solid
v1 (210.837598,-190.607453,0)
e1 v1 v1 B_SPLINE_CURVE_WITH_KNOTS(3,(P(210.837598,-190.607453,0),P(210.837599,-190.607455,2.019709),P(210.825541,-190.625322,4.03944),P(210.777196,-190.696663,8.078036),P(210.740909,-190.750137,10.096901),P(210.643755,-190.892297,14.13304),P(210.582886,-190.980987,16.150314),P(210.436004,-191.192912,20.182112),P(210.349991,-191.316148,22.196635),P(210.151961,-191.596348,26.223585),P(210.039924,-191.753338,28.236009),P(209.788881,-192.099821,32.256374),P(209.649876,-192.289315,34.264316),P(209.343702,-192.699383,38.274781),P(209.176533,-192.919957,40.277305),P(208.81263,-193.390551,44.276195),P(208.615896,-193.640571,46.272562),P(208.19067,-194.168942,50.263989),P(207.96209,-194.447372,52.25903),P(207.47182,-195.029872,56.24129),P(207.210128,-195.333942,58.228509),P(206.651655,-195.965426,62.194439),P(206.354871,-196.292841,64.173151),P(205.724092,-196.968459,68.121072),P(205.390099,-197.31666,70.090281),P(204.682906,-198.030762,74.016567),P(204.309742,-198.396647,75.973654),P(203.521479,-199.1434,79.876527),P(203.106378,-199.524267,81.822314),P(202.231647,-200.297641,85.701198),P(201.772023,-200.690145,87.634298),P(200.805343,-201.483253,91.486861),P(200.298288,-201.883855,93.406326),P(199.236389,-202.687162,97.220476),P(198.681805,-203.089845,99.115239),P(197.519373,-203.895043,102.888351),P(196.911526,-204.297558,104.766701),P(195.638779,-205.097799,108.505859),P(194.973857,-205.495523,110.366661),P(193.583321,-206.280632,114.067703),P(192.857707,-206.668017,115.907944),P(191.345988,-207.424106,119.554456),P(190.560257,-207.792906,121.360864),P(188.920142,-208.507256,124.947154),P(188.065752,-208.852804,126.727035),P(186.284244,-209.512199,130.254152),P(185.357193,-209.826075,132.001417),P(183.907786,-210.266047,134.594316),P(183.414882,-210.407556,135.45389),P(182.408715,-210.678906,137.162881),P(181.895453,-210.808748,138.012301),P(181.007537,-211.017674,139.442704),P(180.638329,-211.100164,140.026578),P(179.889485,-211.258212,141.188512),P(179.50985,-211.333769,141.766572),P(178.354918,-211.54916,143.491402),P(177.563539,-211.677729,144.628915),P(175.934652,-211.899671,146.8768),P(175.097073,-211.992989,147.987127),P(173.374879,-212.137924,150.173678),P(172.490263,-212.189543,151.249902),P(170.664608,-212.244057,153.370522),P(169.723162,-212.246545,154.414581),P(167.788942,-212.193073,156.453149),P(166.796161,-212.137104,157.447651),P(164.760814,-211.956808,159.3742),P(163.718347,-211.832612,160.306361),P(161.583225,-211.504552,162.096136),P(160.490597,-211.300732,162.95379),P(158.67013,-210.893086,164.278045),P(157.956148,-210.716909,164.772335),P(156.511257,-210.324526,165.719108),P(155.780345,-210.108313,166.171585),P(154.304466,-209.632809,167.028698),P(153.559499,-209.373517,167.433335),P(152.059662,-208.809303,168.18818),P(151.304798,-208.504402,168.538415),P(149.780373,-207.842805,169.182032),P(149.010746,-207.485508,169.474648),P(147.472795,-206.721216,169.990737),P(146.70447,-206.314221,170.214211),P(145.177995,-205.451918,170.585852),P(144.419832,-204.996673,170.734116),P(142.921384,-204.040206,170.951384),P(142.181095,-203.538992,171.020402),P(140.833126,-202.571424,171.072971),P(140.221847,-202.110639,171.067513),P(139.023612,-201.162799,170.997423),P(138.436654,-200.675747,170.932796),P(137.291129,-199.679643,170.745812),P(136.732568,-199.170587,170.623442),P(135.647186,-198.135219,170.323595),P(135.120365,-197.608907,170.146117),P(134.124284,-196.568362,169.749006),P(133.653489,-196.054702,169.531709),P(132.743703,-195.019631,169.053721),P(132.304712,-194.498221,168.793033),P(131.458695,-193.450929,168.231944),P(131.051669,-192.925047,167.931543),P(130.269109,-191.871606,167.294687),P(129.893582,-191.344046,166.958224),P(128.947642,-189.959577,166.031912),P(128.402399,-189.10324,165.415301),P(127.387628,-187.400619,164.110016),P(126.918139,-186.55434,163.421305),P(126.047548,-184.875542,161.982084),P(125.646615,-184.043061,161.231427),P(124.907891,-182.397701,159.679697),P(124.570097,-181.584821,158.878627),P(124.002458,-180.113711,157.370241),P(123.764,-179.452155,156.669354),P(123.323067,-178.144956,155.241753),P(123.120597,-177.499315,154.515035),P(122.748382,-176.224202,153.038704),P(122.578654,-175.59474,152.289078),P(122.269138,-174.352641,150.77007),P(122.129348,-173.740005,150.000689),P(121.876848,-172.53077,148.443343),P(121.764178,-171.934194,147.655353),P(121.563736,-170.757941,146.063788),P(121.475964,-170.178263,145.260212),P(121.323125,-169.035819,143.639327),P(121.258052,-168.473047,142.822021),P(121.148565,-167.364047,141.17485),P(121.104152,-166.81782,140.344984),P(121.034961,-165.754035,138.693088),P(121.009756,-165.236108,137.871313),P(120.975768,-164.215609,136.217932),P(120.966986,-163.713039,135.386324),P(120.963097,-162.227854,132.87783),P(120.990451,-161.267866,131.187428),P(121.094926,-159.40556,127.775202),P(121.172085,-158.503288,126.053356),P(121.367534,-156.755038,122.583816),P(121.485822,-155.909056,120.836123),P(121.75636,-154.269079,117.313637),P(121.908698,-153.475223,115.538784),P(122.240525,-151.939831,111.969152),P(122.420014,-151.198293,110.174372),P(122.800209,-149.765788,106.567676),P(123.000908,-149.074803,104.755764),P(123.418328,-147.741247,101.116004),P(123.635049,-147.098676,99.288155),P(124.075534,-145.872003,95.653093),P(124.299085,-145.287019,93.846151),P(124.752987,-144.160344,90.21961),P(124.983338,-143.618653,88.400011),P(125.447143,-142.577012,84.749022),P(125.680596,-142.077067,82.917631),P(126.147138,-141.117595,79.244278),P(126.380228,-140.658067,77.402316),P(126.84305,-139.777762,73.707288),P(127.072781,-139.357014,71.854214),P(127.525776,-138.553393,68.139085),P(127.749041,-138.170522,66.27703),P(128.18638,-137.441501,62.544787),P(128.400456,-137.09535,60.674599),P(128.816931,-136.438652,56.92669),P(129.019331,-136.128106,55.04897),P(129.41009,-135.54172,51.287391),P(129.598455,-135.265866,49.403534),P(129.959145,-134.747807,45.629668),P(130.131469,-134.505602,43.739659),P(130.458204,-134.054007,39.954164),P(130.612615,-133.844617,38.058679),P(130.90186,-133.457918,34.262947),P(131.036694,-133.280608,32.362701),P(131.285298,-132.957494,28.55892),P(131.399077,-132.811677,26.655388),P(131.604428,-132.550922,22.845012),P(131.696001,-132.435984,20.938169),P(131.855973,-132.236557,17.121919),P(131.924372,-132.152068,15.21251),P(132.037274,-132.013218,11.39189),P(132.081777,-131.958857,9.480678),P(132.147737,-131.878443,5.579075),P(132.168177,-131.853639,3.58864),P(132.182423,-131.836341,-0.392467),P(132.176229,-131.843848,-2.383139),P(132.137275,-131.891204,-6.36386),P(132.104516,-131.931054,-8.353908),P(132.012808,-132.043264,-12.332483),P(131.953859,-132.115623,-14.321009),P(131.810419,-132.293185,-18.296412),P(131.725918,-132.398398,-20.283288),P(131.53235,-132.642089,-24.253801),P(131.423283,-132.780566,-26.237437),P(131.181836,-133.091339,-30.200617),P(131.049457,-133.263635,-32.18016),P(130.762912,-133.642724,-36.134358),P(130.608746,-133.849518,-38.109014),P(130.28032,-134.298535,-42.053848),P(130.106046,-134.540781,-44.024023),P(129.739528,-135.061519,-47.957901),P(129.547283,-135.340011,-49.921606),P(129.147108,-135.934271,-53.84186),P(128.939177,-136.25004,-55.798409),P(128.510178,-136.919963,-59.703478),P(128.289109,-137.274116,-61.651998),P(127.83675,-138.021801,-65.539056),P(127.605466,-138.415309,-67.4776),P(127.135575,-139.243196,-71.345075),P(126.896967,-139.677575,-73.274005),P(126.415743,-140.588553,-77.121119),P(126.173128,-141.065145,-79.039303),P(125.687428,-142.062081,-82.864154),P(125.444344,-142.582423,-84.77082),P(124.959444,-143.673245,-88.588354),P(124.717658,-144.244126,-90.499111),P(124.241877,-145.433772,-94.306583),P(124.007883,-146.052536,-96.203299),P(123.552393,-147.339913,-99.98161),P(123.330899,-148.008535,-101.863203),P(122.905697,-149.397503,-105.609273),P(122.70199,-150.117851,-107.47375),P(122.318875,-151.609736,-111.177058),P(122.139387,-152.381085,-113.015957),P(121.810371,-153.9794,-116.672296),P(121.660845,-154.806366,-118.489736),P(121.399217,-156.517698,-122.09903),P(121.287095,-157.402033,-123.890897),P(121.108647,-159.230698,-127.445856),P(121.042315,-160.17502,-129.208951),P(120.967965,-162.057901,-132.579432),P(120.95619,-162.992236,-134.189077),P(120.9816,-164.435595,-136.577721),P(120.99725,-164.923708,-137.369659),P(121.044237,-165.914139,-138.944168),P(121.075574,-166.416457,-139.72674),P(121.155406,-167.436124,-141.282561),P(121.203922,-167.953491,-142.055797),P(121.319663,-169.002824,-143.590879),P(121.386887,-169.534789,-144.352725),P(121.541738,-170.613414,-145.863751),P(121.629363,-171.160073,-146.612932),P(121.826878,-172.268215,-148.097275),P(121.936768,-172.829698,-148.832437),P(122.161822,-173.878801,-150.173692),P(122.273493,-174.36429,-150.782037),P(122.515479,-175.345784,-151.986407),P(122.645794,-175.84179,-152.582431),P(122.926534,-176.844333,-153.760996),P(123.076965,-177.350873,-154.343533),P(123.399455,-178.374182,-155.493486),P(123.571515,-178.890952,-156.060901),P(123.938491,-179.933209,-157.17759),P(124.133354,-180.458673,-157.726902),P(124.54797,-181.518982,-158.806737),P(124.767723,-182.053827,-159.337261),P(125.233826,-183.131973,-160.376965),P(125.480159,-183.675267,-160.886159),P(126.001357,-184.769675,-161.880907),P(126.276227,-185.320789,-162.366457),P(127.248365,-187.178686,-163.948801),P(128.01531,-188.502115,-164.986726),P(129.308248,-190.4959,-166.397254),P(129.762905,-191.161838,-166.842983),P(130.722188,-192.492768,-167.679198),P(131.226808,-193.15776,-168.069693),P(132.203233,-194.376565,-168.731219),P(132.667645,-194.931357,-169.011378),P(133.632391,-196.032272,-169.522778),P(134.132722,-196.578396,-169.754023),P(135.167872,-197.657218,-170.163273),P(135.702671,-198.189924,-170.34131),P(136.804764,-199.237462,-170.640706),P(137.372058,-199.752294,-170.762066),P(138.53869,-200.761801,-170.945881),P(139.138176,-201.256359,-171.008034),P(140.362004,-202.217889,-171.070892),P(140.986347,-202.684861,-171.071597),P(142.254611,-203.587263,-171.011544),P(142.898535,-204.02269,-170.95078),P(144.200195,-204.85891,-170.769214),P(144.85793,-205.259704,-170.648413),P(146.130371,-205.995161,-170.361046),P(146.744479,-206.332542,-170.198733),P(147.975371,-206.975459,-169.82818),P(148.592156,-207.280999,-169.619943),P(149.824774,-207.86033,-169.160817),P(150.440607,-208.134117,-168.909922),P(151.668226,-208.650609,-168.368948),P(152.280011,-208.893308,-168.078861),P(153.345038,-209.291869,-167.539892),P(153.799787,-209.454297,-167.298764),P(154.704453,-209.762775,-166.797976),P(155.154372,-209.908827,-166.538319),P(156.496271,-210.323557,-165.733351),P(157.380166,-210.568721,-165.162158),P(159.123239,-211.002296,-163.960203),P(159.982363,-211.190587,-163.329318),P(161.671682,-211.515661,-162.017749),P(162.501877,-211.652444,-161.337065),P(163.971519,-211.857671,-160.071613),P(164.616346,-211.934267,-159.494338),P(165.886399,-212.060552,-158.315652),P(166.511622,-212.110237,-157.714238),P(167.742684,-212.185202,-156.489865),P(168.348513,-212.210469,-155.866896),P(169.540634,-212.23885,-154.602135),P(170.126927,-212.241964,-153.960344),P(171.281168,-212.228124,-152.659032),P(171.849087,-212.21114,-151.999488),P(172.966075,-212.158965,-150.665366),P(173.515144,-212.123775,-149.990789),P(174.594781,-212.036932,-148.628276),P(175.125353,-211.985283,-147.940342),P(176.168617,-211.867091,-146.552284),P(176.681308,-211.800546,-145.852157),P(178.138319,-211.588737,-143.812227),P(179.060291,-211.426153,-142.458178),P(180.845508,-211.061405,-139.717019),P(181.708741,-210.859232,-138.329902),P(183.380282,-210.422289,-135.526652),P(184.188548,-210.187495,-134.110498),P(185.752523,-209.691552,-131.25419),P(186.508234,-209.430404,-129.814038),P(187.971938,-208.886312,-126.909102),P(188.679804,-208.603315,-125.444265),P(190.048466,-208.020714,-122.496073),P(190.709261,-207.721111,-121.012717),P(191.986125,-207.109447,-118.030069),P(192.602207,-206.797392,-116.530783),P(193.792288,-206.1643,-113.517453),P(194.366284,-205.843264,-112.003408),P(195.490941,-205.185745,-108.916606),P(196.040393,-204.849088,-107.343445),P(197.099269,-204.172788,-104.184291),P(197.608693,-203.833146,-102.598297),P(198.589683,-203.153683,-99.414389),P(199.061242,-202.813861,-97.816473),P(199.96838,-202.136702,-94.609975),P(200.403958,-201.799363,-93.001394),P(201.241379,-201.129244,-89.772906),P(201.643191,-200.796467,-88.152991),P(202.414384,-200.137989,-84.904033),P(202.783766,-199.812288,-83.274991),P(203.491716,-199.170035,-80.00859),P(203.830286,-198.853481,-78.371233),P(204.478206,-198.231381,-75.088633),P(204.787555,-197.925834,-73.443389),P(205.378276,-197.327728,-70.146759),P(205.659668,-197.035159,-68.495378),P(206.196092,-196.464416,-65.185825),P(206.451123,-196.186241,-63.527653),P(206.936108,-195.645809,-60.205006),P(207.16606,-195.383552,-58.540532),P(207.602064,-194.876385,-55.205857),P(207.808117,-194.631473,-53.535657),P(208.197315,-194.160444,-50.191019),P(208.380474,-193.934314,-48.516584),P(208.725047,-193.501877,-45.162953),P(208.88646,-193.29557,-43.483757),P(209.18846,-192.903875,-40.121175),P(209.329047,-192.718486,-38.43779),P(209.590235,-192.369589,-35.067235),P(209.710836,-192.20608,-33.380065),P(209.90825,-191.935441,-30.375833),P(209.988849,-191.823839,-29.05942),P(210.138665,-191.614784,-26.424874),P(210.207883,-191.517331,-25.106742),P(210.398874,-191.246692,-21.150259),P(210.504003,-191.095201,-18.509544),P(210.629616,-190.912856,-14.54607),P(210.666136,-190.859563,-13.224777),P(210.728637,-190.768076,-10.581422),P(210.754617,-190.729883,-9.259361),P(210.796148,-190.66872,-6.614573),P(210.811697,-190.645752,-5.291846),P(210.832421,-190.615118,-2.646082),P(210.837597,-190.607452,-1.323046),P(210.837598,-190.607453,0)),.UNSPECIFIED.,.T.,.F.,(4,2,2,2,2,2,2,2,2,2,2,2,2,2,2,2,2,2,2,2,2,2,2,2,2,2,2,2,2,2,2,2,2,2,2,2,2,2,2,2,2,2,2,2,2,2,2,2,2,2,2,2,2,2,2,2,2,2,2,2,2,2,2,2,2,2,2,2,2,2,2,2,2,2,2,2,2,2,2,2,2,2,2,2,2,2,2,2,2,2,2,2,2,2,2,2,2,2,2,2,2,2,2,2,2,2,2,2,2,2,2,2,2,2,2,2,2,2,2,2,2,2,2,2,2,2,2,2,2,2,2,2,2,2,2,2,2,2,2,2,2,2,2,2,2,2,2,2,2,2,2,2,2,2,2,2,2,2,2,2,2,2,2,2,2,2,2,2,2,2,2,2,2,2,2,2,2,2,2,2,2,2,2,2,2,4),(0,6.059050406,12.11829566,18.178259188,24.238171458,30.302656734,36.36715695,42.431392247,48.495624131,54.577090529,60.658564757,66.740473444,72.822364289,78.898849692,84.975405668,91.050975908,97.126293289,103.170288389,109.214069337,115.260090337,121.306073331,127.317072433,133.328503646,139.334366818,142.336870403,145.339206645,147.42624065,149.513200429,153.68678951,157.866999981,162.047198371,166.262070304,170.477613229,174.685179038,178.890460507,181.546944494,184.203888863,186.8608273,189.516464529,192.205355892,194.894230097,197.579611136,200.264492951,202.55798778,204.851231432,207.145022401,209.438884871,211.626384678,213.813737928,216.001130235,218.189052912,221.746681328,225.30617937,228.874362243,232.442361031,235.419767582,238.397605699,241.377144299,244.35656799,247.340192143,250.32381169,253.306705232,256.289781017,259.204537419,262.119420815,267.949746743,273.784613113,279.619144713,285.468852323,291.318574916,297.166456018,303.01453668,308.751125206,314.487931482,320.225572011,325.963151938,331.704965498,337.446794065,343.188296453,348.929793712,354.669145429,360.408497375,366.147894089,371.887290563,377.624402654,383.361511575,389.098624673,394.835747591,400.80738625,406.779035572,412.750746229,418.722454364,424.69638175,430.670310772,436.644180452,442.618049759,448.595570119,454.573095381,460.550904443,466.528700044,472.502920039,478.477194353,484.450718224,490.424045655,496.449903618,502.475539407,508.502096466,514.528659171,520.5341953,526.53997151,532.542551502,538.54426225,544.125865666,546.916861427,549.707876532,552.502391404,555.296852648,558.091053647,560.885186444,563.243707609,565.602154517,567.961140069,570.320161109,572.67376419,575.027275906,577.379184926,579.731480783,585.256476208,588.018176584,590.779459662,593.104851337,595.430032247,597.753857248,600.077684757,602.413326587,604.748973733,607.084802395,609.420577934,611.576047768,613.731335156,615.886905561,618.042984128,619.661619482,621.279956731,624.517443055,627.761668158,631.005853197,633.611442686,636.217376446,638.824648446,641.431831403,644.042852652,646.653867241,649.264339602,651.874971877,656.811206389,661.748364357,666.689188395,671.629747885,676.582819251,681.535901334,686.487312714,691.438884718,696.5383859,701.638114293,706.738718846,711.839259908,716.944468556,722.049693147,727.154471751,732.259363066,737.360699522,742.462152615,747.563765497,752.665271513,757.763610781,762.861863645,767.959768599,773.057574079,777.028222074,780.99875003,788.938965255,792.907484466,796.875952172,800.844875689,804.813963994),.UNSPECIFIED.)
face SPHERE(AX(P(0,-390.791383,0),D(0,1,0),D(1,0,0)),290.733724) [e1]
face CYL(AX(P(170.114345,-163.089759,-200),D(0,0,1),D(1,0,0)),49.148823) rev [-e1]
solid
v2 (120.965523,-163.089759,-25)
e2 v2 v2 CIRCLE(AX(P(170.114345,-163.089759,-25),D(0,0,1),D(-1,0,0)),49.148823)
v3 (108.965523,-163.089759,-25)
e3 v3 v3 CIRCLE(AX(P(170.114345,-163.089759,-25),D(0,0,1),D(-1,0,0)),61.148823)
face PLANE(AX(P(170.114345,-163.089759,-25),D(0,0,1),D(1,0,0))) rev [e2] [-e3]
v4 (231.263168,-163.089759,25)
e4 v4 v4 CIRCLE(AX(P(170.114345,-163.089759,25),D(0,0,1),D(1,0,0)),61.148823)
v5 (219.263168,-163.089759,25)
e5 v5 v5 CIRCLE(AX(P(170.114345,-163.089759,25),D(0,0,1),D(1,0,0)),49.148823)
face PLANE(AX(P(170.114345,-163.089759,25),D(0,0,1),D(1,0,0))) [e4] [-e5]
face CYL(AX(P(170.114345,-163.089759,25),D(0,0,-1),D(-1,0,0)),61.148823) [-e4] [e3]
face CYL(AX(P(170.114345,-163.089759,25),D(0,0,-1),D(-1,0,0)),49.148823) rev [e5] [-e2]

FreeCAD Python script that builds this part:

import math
import FreeCAD as App
import Part
import Sketcher
Q = App.Units.Quantity

doc = App.newDocument("Part")
body = doc.addObject("PartDesign::Body", "Body")

# Sketch on XY plane
sketch1 = body.newObject("Sketcher::SketchObject", "Sketch")
sketch1.AttachmentSupport = (doc.getObject("XY_Plane"), [""])
sketch1.MapMode = "FlatFace"
sketch1.addGeometry([
    Part.LineSegment(App.Vector(0, -100, 0), App.Vector(0, -682, 0)),
    Part.ArcOfCircle(Part.Circle(App.Vector(0, -391, 0), App.Vector(0, 0, 1), 291), math.radians(-90), math.radians(90)),
], False)
sketch1.addConstraint([
    Sketcher.Constraint("Coincident", 0, 1, 1, 2),
    Sketcher.Constraint("Coincident", 1, 1, 0, 2),
    Sketcher.Constraint("Vertical", 0),
    Sketcher.Constraint("PointOnObject", 1, 3, -2),
    Sketcher.Constraint("PointOnObject", 0, 1, -2),
    Sketcher.Constraint("Radius", 1, Q("290.733724 mm")),
    Sketcher.Constraint("DistanceY", 0, 1, -1, 1, Q("100.057659 mm")),
])
revolution = body.newObject("PartDesign::Revolution", "Revolution")
revolution.Profile = sketch1
revolution.ReferenceAxis = (sketch1, ["V_Axis"])
revolution.Angle = 360

# Sketch on XY plane
sketch2 = body.newObject("Sketcher::SketchObject", "Sketch001")
sketch2.AttachmentSupport = (doc.getObject("XY_Plane"), [""])
sketch2.MapMode = "FlatFace"
sketch2.addGeometry(Part.Circle(App.Vector(170, -163, 0), App.Vector(0, 0, 1), 49), False)
sketch2.addConstraint([
    Sketcher.Constraint("Diameter", 0, Q("98.297645 mm")),
    Sketcher.Constraint("DistanceY", 0, 3, -1, 1, Q("163.089759 mm")),
    Sketcher.Constraint("DistanceX", -1, 1, 0, 3, Q("170.114345 mm")),
])
pocket1 = body.newObject("PartDesign::Pocket", "Pocket")
pocket1.Profile = sketch2
pocket1.Length = 400
pocket1.Midplane = True
body2 = doc.addObject("PartDesign::Body", "Body001")

# Sketch on XY plane
sketch3 = body2.newObject("Sketcher::SketchObject", "Sketch002")
sketch3.AttachmentSupport = (doc.getObject("XY_Plane001"), [""])
sketch3.MapMode = "FlatFace"
sketch3.addGeometry([
    Part.Circle(App.Vector(170, -163, 0), App.Vector(0, 0, 1), 61),
    Part.ArcOfCircle(Part.Circle(App.Vector(170, -163, 0), App.Vector(0, 0, 1), 49), math.radians(-37), math.radians(143)),
    Part.ArcOfCircle(Part.Circle(App.Vector(170, -163, 0), App.Vector(0, 0, 1), 49), math.radians(143), math.radians(323)),
], False)
sketch3.addConstraint([
    Sketcher.Constraint("Tangent", 1, 1, 2, 2),
    Sketcher.Constraint("Coincident", 2, 1, 1, 2),
    Sketcher.Constraint("Coincident", 1, 3, 0, 3),
    Sketcher.Constraint("Diameter", 0, Q("122.297645 mm")),
    Sketcher.Constraint("Radius", 1, Q("49.148823 mm")),
    Sketcher.Constraint("DistanceY", 0, 3, -1, 1, Q("163.089759 mm")),
    Sketcher.Constraint("DistanceX", -1, 1, 1, 1, Q("209.488271 mm")),
    Sketcher.Constraint("DistanceX", -1, 1, 2, 1, Q("130.740419 mm")),
    Sketcher.Constraint("DistanceX", -1, 1, 0, 3, Q("170.114345 mm")),
])
pad1 = body2.newObject("PartDesign::Pad", "Pad")
pad1.Profile = sketch3
pad1.Length = 50
pad1.Midplane = True

doc.recompute()
